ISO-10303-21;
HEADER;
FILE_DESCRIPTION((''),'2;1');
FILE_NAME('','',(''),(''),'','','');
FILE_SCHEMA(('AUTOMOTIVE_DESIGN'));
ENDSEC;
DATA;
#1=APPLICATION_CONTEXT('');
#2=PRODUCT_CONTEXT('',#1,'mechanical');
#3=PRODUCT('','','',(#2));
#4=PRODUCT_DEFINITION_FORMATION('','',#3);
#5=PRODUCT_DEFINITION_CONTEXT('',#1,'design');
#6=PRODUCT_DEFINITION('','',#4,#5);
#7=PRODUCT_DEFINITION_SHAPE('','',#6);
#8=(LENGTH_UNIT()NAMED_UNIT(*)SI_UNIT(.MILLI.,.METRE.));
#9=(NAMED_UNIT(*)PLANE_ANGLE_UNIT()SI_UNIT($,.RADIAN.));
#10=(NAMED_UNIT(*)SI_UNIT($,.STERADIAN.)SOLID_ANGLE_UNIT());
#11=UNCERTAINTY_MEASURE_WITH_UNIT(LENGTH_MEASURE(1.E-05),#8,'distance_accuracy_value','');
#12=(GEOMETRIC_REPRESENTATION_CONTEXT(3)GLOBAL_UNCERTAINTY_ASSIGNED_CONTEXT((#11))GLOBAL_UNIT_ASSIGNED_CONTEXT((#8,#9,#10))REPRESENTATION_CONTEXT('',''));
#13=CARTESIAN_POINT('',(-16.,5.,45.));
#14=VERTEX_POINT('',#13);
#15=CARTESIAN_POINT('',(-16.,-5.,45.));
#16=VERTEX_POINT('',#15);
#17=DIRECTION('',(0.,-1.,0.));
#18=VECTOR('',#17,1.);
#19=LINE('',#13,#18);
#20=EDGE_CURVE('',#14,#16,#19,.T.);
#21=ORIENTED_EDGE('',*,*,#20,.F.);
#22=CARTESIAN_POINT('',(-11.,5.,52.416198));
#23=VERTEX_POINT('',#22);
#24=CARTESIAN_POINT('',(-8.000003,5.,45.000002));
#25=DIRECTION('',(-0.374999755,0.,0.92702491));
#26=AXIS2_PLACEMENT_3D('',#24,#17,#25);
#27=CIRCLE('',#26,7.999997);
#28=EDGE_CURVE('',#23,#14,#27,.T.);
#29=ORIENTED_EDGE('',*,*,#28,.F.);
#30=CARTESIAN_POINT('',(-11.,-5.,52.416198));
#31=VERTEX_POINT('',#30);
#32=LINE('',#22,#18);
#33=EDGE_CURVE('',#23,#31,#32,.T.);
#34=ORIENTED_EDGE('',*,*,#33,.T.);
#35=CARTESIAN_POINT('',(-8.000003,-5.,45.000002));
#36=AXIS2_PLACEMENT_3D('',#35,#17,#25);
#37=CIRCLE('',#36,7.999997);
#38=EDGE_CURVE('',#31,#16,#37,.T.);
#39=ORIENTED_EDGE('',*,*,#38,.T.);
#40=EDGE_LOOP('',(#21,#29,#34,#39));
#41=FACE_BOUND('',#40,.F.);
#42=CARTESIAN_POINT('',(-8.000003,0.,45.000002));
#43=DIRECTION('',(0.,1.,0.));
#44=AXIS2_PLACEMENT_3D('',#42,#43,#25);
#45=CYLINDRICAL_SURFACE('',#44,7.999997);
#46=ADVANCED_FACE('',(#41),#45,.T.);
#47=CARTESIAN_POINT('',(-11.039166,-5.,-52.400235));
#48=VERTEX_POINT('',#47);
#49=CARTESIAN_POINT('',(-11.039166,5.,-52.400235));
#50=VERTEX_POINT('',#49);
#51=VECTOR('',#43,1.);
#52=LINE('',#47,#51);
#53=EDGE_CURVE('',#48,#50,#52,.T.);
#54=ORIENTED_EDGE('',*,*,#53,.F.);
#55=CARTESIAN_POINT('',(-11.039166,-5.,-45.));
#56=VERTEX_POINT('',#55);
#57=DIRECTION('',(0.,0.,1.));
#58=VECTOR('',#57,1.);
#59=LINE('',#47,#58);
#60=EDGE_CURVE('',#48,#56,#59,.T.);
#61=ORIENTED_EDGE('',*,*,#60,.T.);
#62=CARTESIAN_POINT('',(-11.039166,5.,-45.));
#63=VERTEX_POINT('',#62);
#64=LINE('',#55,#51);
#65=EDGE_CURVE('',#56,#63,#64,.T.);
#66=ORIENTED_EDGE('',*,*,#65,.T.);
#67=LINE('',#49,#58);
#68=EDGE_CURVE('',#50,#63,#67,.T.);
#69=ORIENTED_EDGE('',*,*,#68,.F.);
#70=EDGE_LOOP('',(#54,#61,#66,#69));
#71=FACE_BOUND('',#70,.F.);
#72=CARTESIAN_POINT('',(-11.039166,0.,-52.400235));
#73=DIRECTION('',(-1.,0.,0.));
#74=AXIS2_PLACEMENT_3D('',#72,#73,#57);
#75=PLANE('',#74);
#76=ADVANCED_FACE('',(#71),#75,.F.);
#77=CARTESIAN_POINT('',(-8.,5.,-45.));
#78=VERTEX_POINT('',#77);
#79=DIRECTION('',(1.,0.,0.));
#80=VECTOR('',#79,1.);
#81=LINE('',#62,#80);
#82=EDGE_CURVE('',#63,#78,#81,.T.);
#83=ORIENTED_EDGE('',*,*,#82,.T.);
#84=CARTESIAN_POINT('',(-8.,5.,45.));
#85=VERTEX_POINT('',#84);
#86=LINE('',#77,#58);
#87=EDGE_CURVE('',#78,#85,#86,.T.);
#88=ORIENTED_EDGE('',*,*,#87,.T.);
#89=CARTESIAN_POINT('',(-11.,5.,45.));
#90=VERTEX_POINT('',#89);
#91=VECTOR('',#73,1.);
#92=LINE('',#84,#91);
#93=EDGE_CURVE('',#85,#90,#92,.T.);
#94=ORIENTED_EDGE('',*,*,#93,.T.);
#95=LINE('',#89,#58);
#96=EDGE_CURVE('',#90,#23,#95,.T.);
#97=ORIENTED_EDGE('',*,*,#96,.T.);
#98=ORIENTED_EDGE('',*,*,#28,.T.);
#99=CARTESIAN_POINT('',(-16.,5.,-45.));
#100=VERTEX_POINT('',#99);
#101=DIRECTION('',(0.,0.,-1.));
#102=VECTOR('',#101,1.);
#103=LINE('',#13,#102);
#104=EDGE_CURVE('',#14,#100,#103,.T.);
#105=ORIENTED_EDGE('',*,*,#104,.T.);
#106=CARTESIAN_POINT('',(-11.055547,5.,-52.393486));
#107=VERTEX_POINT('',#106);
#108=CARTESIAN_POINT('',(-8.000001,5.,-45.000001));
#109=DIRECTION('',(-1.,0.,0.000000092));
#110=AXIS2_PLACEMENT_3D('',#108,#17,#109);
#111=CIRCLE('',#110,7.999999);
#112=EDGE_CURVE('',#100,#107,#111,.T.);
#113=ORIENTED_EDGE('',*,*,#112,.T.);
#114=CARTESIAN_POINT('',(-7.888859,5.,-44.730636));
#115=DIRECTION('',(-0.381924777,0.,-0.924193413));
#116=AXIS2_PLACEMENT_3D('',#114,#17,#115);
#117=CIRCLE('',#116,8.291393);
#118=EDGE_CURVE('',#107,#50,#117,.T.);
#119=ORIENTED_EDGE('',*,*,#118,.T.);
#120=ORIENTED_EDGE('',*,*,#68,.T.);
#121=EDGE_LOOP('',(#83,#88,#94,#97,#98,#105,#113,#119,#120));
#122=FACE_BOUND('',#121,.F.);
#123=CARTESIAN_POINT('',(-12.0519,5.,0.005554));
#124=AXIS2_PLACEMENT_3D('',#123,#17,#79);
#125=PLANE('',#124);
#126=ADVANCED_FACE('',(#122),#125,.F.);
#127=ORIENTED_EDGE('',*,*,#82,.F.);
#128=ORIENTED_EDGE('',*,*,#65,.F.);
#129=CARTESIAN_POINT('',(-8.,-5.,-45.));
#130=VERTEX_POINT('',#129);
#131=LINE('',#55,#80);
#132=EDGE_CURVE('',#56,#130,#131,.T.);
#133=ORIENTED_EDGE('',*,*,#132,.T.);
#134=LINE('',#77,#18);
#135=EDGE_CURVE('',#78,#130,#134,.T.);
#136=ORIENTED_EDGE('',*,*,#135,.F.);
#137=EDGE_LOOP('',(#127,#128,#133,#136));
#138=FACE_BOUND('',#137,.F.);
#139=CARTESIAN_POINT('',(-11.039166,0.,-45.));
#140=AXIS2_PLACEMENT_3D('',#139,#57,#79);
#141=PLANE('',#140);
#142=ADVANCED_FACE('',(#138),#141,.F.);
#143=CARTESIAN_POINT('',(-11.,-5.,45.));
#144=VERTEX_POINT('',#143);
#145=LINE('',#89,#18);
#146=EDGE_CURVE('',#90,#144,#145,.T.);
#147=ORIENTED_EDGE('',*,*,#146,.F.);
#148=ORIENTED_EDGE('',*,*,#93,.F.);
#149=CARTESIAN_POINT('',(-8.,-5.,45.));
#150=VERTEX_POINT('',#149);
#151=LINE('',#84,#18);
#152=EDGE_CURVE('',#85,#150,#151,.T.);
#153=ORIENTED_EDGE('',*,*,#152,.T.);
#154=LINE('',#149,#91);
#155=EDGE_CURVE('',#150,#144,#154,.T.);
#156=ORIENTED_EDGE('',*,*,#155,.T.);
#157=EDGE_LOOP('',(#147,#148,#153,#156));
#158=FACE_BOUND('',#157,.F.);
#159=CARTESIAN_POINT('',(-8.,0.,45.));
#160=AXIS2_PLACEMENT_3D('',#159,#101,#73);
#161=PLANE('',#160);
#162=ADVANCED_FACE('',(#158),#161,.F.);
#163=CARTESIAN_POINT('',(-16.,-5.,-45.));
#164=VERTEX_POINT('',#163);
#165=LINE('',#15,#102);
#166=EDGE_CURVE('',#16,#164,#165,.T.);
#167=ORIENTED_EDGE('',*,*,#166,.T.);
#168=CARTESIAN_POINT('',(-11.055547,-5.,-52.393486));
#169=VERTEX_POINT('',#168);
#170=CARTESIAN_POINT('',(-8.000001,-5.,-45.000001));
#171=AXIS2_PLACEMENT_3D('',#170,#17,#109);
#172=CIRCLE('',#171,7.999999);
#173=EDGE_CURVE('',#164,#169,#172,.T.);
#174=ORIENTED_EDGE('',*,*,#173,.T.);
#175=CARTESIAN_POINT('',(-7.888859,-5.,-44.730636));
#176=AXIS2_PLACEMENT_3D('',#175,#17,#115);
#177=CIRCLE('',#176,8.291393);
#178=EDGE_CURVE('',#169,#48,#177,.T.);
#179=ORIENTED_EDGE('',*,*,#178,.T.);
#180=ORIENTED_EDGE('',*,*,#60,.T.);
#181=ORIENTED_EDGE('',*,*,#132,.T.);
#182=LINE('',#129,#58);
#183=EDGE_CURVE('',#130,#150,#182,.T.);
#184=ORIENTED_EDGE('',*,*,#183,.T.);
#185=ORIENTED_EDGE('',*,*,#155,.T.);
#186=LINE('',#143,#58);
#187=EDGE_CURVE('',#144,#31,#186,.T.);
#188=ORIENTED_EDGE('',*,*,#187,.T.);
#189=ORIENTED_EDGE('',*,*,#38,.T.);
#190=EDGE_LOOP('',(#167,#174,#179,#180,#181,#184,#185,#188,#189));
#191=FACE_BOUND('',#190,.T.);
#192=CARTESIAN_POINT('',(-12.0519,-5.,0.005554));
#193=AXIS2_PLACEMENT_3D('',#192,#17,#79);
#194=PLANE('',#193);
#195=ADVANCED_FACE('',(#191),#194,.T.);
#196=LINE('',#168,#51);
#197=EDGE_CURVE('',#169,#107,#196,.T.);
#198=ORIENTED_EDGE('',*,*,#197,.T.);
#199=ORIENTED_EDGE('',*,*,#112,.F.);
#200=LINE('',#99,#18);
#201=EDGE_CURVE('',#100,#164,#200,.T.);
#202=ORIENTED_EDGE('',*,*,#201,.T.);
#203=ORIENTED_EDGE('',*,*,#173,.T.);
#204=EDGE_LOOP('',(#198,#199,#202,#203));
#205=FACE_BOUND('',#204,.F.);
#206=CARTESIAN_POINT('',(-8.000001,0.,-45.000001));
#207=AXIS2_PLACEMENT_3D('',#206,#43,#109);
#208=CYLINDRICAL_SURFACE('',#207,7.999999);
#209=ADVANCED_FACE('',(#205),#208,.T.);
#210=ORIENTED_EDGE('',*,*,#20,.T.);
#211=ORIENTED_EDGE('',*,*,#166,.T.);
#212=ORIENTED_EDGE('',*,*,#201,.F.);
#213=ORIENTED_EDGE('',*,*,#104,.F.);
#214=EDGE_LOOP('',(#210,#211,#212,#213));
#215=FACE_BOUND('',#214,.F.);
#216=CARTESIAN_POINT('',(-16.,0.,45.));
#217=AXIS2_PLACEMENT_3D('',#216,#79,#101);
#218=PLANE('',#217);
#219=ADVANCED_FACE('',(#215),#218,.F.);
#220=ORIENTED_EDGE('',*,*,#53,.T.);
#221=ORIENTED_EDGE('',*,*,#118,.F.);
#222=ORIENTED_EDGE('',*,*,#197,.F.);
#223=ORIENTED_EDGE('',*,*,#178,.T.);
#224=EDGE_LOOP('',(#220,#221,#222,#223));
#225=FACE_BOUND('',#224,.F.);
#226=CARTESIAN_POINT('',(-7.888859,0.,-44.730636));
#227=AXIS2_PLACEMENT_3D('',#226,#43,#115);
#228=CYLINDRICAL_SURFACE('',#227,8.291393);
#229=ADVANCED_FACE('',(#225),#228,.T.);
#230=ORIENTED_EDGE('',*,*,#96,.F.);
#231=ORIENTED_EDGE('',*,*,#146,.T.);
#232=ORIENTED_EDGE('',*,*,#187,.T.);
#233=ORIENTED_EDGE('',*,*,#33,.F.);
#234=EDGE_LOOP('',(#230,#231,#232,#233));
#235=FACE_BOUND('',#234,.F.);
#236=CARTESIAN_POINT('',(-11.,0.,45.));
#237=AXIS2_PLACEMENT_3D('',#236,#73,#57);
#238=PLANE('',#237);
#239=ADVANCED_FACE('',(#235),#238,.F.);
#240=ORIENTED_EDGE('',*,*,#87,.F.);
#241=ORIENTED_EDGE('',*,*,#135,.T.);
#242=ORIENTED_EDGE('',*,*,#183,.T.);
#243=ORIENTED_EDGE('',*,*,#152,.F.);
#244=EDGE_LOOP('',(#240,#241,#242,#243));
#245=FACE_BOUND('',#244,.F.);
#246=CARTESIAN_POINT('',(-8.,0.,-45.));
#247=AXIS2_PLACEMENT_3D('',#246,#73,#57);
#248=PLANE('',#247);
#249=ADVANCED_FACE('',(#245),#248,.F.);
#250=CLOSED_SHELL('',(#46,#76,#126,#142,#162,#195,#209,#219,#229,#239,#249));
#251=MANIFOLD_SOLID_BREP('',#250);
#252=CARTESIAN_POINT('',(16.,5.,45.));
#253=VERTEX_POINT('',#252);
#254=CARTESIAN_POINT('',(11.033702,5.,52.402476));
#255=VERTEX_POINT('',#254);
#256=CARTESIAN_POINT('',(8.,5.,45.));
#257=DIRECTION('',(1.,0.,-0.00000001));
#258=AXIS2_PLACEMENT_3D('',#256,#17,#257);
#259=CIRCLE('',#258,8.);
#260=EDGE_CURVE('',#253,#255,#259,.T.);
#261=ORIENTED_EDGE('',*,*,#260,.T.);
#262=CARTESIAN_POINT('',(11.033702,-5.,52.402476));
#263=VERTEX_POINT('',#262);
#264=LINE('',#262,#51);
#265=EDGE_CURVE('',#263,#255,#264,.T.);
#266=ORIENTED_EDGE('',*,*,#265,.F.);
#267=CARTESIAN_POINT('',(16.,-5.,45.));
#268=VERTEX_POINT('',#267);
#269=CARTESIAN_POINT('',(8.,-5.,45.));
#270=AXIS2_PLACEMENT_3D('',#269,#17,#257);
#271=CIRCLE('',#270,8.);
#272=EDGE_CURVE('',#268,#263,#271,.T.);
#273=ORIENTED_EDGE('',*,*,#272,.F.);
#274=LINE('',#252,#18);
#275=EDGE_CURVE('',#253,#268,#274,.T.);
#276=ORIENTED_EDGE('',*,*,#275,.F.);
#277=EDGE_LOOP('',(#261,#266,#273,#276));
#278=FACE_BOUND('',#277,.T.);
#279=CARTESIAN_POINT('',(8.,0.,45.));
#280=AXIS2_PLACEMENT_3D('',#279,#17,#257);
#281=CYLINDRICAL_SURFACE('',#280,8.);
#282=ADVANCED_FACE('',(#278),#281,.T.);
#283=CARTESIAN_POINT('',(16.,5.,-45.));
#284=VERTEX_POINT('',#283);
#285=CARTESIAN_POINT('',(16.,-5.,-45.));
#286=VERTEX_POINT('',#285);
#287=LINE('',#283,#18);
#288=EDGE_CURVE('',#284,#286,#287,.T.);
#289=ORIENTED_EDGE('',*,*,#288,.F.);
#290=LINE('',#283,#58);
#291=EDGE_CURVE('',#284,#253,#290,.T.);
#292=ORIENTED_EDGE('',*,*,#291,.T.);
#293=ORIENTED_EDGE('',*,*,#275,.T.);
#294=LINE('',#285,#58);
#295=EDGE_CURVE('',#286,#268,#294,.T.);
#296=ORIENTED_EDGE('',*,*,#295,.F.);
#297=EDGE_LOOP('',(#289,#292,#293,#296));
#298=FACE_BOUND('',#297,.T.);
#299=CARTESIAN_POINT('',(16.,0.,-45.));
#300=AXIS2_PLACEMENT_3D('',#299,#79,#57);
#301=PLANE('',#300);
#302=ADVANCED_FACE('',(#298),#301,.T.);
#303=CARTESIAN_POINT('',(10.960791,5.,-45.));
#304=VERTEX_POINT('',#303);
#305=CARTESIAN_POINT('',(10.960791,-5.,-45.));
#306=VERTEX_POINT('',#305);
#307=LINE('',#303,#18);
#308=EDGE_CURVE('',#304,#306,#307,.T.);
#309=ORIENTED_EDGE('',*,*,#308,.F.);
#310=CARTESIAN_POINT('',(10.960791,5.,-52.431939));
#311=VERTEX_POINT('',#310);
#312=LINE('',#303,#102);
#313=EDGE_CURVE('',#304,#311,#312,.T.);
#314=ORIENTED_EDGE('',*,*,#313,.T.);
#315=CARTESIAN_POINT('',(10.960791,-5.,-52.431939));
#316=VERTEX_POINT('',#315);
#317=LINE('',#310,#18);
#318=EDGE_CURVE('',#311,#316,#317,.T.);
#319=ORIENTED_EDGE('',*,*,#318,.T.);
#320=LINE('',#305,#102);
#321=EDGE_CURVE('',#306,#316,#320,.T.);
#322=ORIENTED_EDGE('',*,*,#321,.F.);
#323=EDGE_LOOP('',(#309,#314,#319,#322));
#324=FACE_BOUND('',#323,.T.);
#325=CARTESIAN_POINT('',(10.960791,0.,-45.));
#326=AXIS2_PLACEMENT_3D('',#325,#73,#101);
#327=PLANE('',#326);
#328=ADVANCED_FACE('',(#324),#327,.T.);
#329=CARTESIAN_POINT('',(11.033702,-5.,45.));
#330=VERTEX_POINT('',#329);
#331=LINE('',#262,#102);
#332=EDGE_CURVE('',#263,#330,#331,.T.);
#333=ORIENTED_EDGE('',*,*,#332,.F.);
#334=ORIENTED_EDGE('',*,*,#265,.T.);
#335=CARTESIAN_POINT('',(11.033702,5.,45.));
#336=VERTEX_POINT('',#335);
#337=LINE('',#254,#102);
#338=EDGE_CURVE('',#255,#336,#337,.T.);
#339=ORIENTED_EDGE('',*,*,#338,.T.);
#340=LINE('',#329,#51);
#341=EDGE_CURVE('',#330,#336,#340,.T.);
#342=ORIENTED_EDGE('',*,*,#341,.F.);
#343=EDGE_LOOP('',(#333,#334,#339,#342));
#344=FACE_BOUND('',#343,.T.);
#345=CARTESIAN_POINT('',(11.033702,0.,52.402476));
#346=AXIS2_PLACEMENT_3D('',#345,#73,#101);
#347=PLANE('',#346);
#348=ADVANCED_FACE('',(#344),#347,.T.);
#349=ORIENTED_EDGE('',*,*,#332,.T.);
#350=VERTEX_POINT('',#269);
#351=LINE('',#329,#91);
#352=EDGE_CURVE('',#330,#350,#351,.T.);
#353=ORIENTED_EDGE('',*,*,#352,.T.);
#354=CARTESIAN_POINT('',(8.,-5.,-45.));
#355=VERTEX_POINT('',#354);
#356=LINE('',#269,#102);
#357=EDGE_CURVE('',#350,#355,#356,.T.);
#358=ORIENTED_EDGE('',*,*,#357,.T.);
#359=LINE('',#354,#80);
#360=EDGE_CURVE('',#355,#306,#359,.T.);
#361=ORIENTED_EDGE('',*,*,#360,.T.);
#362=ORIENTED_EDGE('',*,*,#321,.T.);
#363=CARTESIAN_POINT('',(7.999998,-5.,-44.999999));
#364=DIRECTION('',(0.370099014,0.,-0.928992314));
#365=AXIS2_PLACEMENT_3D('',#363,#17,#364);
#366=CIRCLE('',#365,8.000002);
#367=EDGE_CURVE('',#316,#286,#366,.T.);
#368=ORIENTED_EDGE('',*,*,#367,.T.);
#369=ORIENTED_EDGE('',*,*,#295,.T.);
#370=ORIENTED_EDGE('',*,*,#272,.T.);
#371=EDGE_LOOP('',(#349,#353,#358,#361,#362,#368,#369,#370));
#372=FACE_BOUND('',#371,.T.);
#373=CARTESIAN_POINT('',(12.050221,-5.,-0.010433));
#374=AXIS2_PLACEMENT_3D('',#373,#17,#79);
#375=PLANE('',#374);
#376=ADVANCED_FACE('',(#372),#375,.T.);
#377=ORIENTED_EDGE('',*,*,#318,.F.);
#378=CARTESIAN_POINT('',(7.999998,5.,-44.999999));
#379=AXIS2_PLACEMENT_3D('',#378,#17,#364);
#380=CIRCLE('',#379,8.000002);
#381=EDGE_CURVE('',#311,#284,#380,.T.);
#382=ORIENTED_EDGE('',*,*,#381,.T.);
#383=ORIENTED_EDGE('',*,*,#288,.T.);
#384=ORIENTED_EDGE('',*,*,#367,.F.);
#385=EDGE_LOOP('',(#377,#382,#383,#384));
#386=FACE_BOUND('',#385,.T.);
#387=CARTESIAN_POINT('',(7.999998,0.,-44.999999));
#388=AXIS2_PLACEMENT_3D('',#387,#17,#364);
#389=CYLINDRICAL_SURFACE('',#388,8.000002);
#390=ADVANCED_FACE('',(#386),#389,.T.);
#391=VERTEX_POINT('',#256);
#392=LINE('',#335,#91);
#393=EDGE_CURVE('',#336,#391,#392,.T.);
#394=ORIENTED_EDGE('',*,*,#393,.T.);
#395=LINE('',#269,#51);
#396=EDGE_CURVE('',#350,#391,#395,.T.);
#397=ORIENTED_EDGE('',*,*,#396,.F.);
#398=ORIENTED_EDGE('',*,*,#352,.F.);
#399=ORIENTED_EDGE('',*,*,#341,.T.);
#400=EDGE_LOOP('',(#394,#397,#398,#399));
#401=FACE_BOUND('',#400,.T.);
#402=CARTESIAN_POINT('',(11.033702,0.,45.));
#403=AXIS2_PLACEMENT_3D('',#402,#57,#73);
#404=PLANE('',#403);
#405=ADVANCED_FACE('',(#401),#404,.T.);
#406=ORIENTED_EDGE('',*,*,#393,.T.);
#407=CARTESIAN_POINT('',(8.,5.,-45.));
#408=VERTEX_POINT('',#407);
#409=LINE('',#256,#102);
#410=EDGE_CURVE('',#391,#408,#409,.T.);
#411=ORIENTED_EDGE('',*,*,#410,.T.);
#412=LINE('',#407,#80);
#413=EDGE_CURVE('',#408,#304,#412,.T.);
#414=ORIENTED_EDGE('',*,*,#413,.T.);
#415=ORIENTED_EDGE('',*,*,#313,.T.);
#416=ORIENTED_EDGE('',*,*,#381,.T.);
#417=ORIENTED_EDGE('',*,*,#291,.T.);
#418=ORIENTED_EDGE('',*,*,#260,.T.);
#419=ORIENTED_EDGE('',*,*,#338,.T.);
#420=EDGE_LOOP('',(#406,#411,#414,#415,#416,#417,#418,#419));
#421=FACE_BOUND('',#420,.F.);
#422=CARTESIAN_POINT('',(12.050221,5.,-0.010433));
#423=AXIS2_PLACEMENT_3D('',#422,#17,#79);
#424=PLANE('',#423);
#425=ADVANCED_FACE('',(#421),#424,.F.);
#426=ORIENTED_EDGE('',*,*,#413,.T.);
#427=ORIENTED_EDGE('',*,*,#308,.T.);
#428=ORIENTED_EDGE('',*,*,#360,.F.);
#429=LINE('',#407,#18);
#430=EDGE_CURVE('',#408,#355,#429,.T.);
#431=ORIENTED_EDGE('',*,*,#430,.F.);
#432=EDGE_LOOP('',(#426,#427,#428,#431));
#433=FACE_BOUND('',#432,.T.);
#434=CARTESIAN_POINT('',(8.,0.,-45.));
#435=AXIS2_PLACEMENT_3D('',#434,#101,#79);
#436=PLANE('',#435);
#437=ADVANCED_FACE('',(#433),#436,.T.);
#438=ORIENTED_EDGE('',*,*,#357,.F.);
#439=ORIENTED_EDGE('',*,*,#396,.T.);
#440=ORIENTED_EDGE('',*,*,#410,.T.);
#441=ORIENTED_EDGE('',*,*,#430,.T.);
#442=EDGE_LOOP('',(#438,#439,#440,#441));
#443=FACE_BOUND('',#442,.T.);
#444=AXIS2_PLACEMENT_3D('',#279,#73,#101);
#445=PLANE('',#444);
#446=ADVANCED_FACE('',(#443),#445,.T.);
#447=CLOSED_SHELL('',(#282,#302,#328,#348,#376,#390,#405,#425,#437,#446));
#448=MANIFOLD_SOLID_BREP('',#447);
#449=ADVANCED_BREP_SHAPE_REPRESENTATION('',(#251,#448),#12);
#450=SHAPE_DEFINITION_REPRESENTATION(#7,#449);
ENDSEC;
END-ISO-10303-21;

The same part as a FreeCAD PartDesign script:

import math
import FreeCAD as App
import Part
import Sketcher

V = App.Vector
Q = App.Units.Quantity

doc = App.newDocument("Part")
body = doc.addObject("PartDesign::Body", "Body")
body.AllowCompound = True

sketch1 = body.newObject("Sketcher::SketchObject", "Sketch")
sketch1.AttachmentSupport = (doc.getObject("XZ_Plane"), [""])
sketch1.MapMode = "FlatFace"
sketch1.addGeometry([
    Part.LineSegment(V(-11.039, -45, 0), V(-8, -45, 0)),
    Part.LineSegment(V(-8, -45, 0), V(-8, 45, 0)),
    Part.LineSegment(V(-8, 45, 0), V(-11, 45, 0)),
    Part.LineSegment(V(-11, 45, 0), V(-11, 52.416, 0)),
    Part.ArcOfCircle(Part.Circle(V(-8, 45, 0), V(0, 0, 1), 8), math.radians(112), math.radians(180)),
    Part.LineSegment(V(-16, 45, 0), V(-16, -45, 0)),
    Part.ArcOfCircle(Part.Circle(V(-8, -45, 0), V(0, 0, 1), 8), math.radians(180), math.radians(248)),
    Part.ArcOfCircle(Part.Circle(V(-7.889, -44.731, 0), V(0, 0, 1), 8.291), math.radians(-112.45), math.radians(-112.33)),
    Part.LineSegment(V(-11.039, -52.4, 0), V(-11.039, -45, 0)),
    Part.LineSegment(V(8, 45, 0), V(8, -45, 0)),
    Part.LineSegment(V(8, -45, 0), V(10.961, -45, 0)),
    Part.LineSegment(V(10.961, -45, 0), V(10.961, -52.432, 0)),
    Part.ArcOfCircle(Part.Circle(V(8, -45, 0), V(0, 0, 1), 8), math.radians(-68), math.radians(0)),
    Part.LineSegment(V(16, -45, 0), V(16, 45, 0)),
    Part.ArcOfCircle(Part.Circle(V(8, 45, 0), V(0, 0, 1), 8), math.radians(0), math.radians(68)),
    Part.LineSegment(V(11.034, 52.402, 0), V(11.034, 45, 0)),
    Part.LineSegment(V(11.034, 45, 0), V(8, 45, 0)),
], False)
sketch1.addConstraint([
    Sketcher.Constraint("Coincident", 0, 2, 1, 1),
    Sketcher.Constraint("Coincident", 1, 2, 2, 1),
    Sketcher.Constraint("Coincident", 2, 2, 3, 1),
    Sketcher.Constraint("Coincident", 3, 2, 4, 1),
    Sketcher.Constraint("Tangent", 4, 2, 5, 1),
    Sketcher.Constraint("Tangent", 5, 2, 6, 1),
    Sketcher.Constraint("Coincident", 6, 2, 7, 1),
    Sketcher.Constraint("Coincident", 7, 2, 8, 1),
    Sketcher.Constraint("Coincident", 8, 2, 0, 1),
    Sketcher.Constraint("Coincident", 9, 2, 10, 1),
    Sketcher.Constraint("Coincident", 10, 2, 11, 1),
    Sketcher.Constraint("Coincident", 11, 2, 12, 1),
    Sketcher.Constraint("Tangent", 12, 2, 13, 1),
    Sketcher.Constraint("Tangent", 13, 2, 14, 1),
    Sketcher.Constraint("Coincident", 14, 2, 15, 1),
    Sketcher.Constraint("Coincident", 15, 2, 16, 1),
    Sketcher.Constraint("Coincident", 16, 2, 9, 1),
    Sketcher.Constraint("Horizontal", 0),
    Sketcher.Constraint("Vertical", 1),
    Sketcher.Constraint("Horizontal", 2),
    Sketcher.Constraint("Vertical", 3),
    Sketcher.Constraint("Vertical", 5),
    Sketcher.Constraint("Vertical", 8),
    Sketcher.Constraint("Vertical", 9),
    Sketcher.Constraint("Horizontal", 10),
    Sketcher.Constraint("Vertical", 11),
    Sketcher.Constraint("Vertical", 13),
    Sketcher.Constraint("Vertical", 15),
    Sketcher.Constraint("Horizontal", 16),
    Sketcher.Constraint("Coincident", 0, 2, 6, 3),
    Sketcher.Constraint("Coincident", 1, 2, 4, 3),
    Sketcher.Constraint("Coincident", 9, 2, 12, 3),
    Sketcher.Constraint("Coincident", 16, 2, 14, 3),
    Sketcher.Constraint("Equal", 6, 14),
    Sketcher.Constraint("Symmetric", 4, 3, 12, 3, -1, 1),
    Sketcher.Constraint("Horizontal", 6, 3, 12, 3),
    Sketcher.Constraint("Horizontal", 4, 3, 14, 3),
    Sketcher.Constraint("Radius", 6, Q("7.999999 mm")),
    Sketcher.Constraint("DistanceX", 2, 2, 2, 1, Q("3 mm")),
    Sketcher.Constraint("DistanceY", 1, 1, 1, 2, Q("90 mm")),
    Sketcher.Constraint("DistanceX", 6, 3, -1, 1, Q("8.000001 mm")),
    Sketcher.Constraint("DistanceX", 16, 2, 16, 1, Q("3.033702 mm")),
    Sketcher.Constraint("Radius", 7, Q("8.291393 mm")),
    Sketcher.Constraint("DistanceX", 10, 1, 10, 2, Q("2.960791 mm")),
    Sketcher.Constraint("DistanceY", 7, 2, 7, 3, Q("7.669599 mm")),
    Sketcher.Constraint("DistanceX", 0, 1, 0, 2, Q("3.039166 mm")),
    Sketcher.Constraint("DistanceX", 6, 2, 7, 3, Q("3.166688 mm")),
])
pad1 = body.newObject("PartDesign::Pad", "Pad")
pad1.Profile = sketch1
pad1.Length = 10
pad1.Midplane = True

doc.recompute()
